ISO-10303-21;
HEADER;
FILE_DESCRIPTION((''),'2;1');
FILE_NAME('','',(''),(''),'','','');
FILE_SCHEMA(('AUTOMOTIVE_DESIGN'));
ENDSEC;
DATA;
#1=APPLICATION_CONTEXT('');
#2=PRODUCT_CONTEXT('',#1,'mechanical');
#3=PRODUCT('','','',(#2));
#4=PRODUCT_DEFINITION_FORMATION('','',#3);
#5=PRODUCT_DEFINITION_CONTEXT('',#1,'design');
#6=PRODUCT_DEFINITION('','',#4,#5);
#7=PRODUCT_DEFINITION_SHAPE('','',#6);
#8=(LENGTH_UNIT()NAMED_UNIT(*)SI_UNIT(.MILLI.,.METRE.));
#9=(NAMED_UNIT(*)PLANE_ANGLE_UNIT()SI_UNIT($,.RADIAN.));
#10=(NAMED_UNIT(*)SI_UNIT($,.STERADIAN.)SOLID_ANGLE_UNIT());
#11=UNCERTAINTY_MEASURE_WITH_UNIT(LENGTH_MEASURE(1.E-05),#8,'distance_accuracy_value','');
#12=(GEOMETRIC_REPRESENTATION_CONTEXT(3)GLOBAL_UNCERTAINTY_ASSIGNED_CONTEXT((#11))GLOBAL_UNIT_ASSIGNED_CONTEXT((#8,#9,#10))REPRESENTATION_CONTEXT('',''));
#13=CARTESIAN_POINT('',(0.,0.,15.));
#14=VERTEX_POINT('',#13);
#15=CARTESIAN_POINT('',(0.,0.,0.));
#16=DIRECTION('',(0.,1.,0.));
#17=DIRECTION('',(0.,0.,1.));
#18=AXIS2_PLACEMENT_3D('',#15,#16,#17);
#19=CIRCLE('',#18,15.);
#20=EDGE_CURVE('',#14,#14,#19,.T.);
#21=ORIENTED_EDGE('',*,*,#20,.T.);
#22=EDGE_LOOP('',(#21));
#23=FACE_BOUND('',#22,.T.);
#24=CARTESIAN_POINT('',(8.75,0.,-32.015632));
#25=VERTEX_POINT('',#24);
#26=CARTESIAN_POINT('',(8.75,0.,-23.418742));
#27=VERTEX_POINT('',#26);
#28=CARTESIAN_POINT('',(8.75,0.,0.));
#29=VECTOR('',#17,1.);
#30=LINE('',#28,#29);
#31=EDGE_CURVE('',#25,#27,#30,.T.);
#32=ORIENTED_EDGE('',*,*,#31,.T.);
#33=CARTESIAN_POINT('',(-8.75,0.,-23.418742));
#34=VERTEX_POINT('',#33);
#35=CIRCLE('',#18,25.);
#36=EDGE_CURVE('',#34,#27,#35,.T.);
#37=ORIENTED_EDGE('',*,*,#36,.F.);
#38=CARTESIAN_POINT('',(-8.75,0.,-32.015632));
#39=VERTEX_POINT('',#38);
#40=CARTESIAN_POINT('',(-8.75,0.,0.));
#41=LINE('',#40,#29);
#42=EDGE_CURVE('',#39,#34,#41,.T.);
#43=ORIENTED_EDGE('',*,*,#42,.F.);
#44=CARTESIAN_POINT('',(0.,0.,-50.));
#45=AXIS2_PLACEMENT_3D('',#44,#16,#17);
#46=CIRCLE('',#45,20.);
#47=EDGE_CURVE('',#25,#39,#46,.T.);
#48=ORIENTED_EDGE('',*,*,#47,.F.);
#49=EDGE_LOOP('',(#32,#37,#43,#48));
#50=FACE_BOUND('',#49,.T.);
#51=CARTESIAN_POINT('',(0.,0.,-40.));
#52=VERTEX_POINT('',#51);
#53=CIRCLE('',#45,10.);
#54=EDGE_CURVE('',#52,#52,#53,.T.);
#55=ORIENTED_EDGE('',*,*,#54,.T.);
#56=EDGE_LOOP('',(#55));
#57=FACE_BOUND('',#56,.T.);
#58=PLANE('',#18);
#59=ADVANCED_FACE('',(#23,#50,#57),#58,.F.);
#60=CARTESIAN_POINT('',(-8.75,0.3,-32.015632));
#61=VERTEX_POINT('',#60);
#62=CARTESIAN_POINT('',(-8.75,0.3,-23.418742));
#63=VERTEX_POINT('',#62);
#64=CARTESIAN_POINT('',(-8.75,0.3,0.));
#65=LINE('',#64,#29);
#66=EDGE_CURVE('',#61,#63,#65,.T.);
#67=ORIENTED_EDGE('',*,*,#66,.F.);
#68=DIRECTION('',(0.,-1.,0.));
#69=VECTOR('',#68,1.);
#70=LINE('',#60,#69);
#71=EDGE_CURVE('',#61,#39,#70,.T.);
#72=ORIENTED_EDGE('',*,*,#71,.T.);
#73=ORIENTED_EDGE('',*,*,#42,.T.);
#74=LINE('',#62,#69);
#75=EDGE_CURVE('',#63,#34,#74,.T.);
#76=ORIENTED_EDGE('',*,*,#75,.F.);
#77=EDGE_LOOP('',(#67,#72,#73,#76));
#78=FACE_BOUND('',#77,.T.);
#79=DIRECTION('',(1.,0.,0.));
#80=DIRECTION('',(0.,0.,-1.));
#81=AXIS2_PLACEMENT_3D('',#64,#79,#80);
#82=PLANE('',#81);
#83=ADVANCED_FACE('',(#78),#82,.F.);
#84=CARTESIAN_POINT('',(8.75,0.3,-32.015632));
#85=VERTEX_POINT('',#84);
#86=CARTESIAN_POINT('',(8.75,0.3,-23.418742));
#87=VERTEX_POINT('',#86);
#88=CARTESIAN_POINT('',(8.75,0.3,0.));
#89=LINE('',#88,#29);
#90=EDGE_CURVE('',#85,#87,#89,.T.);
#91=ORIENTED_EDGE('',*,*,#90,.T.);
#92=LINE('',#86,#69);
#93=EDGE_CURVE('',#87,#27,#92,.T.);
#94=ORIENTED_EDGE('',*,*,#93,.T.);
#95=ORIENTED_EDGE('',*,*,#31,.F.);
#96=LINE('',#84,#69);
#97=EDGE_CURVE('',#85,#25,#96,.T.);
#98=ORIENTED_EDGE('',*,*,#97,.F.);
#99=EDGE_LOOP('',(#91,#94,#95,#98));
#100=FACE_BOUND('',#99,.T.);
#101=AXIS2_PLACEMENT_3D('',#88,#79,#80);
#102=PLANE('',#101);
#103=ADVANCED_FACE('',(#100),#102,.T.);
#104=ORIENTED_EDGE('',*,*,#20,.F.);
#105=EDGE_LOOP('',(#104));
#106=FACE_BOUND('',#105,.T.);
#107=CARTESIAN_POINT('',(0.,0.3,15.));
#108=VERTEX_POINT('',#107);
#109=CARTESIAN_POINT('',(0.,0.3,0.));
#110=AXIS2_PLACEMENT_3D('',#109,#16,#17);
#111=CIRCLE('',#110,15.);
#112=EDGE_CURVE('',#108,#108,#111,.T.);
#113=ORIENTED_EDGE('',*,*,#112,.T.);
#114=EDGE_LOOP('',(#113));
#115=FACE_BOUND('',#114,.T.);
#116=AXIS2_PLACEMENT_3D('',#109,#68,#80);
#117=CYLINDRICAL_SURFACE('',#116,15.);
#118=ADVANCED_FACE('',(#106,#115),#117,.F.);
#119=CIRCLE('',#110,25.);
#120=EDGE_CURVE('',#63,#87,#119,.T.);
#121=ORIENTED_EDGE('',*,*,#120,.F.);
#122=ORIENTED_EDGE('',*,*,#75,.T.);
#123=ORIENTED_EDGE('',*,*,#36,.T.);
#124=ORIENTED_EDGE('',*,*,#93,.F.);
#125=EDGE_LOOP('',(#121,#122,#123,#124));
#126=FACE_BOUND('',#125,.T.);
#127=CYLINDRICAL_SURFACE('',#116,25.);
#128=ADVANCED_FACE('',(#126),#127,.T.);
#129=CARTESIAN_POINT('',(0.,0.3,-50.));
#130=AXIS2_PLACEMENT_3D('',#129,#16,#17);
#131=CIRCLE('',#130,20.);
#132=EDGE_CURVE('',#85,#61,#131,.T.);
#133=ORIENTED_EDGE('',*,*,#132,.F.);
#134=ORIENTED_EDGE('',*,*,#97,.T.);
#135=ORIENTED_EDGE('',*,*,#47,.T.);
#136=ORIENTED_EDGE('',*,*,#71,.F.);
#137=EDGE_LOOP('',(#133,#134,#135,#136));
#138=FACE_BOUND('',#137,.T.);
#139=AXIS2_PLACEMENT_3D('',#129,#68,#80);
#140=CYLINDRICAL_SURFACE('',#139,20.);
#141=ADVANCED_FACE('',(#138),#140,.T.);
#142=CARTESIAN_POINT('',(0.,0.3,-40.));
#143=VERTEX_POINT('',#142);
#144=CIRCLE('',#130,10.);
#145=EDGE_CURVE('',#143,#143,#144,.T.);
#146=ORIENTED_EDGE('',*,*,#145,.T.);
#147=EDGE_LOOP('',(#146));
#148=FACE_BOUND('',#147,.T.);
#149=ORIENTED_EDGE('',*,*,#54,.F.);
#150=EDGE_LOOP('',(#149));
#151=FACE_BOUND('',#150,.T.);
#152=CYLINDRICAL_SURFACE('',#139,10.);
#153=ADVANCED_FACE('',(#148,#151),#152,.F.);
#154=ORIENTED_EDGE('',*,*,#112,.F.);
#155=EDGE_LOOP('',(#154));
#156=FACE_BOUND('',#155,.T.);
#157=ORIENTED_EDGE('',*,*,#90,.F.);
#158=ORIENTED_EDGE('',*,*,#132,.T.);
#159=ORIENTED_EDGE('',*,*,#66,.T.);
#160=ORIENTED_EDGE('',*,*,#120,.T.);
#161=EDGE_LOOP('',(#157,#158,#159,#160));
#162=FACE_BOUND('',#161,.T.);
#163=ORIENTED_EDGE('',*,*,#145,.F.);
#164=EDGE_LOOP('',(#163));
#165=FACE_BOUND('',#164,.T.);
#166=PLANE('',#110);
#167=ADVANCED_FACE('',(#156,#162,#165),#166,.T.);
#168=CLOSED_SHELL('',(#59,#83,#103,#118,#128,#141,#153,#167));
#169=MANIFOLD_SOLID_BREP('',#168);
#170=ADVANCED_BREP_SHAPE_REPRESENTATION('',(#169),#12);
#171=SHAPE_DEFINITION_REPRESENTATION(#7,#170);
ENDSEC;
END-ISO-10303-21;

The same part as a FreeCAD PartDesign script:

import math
import FreeCAD as App
import Part
import Sketcher

doc = App.newDocument("Part")
body = doc.addObject("PartDesign::Body", "Body")

sketch1 = body.newObject("Sketcher::SketchObject", "Sketch")
sketch1.AttachmentSupport = (doc.getObject("XZ_Plane"), [""])
sketch1.MapMode = "FlatFace"
sketch1.addGeometry(Part.ArcOfCircle(Part.Circle(App.Vector(0, -50, 0), App.Vector(0, 0, 1), 20), math.radians(115.94448), math.radians(424.05552)), False)
sketch1.addGeometry(Part.LineSegment(App.Vector(-8.75, -32.015632, 0), App.Vector(-8.75, -23.418742, 0)), False)
sketch1.addGeometry(Part.ArcOfCircle(Part.Circle(App.Vector(0, 0, 0), App.Vector(0, 0, 1), 25), math.radians(-69.512685), math.radians(249.512685)), False)
sketch1.addGeometry(Part.LineSegment(App.Vector(8.75, -23.418742, 0), App.Vector(8.75, -32.015632, 0)), False)
sketch1.addGeometry(Part.Circle(App.Vector(0, -50, 0), App.Vector(0, 0, 1), 10), False)
sketch1.addGeometry(Part.Circle(App.Vector(0, 0, 0), App.Vector(0, 0, 1), 15), False)
sketch1.addConstraint(Sketcher.Constraint("Coincident", 0, 1, 1, 1))
sketch1.addConstraint(Sketcher.Constraint("Coincident", 1, 2, 2, 2))
sketch1.addConstraint(Sketcher.Constraint("Coincident", 2, 1, 3, 1))
sketch1.addConstraint(Sketcher.Constraint("Coincident", 3, 2, 0, 2))
sketch1.addConstraint(Sketcher.Constraint("Vertical", 1))
sketch1.addConstraint(Sketcher.Constraint("Vertical", 3))
sketch1.addConstraint(Sketcher.Constraint("Coincident", 2, 3, -1, 1))
sketch1.addConstraint(Sketcher.Constraint("Coincident", 5, 3, -1, 1))
sketch1.addConstraint(Sketcher.Constraint("Coincident", 4, 3, 0, 3))
sketch1.addConstraint(Sketcher.Constraint("Symmetric", 0, 1, 3, 2, -2))
sketch1.addConstraint(Sketcher.Constraint("Diameter", 4, 20.0))
sketch1.addConstraint(Sketcher.Constraint("Diameter", 5, 30.0))
sketch1.addConstraint(Sketcher.Constraint("Radius", 0, 20.0))
sketch1.addConstraint(Sketcher.Constraint("Radius", 2, 25.0))
sketch1.addConstraint(Sketcher.Constraint("DistanceY", 0, 3, -1, 1, 50.0))
sketch1.addConstraint(Sketcher.Constraint("DistanceX", 1, 2, 2, 1, 17.5))
pad1 = body.newObject("PartDesign::Pad", "Pad")
pad1.Profile = sketch1
pad1.Length = 0.3
pad1.Reversed = True

doc.recompute()
